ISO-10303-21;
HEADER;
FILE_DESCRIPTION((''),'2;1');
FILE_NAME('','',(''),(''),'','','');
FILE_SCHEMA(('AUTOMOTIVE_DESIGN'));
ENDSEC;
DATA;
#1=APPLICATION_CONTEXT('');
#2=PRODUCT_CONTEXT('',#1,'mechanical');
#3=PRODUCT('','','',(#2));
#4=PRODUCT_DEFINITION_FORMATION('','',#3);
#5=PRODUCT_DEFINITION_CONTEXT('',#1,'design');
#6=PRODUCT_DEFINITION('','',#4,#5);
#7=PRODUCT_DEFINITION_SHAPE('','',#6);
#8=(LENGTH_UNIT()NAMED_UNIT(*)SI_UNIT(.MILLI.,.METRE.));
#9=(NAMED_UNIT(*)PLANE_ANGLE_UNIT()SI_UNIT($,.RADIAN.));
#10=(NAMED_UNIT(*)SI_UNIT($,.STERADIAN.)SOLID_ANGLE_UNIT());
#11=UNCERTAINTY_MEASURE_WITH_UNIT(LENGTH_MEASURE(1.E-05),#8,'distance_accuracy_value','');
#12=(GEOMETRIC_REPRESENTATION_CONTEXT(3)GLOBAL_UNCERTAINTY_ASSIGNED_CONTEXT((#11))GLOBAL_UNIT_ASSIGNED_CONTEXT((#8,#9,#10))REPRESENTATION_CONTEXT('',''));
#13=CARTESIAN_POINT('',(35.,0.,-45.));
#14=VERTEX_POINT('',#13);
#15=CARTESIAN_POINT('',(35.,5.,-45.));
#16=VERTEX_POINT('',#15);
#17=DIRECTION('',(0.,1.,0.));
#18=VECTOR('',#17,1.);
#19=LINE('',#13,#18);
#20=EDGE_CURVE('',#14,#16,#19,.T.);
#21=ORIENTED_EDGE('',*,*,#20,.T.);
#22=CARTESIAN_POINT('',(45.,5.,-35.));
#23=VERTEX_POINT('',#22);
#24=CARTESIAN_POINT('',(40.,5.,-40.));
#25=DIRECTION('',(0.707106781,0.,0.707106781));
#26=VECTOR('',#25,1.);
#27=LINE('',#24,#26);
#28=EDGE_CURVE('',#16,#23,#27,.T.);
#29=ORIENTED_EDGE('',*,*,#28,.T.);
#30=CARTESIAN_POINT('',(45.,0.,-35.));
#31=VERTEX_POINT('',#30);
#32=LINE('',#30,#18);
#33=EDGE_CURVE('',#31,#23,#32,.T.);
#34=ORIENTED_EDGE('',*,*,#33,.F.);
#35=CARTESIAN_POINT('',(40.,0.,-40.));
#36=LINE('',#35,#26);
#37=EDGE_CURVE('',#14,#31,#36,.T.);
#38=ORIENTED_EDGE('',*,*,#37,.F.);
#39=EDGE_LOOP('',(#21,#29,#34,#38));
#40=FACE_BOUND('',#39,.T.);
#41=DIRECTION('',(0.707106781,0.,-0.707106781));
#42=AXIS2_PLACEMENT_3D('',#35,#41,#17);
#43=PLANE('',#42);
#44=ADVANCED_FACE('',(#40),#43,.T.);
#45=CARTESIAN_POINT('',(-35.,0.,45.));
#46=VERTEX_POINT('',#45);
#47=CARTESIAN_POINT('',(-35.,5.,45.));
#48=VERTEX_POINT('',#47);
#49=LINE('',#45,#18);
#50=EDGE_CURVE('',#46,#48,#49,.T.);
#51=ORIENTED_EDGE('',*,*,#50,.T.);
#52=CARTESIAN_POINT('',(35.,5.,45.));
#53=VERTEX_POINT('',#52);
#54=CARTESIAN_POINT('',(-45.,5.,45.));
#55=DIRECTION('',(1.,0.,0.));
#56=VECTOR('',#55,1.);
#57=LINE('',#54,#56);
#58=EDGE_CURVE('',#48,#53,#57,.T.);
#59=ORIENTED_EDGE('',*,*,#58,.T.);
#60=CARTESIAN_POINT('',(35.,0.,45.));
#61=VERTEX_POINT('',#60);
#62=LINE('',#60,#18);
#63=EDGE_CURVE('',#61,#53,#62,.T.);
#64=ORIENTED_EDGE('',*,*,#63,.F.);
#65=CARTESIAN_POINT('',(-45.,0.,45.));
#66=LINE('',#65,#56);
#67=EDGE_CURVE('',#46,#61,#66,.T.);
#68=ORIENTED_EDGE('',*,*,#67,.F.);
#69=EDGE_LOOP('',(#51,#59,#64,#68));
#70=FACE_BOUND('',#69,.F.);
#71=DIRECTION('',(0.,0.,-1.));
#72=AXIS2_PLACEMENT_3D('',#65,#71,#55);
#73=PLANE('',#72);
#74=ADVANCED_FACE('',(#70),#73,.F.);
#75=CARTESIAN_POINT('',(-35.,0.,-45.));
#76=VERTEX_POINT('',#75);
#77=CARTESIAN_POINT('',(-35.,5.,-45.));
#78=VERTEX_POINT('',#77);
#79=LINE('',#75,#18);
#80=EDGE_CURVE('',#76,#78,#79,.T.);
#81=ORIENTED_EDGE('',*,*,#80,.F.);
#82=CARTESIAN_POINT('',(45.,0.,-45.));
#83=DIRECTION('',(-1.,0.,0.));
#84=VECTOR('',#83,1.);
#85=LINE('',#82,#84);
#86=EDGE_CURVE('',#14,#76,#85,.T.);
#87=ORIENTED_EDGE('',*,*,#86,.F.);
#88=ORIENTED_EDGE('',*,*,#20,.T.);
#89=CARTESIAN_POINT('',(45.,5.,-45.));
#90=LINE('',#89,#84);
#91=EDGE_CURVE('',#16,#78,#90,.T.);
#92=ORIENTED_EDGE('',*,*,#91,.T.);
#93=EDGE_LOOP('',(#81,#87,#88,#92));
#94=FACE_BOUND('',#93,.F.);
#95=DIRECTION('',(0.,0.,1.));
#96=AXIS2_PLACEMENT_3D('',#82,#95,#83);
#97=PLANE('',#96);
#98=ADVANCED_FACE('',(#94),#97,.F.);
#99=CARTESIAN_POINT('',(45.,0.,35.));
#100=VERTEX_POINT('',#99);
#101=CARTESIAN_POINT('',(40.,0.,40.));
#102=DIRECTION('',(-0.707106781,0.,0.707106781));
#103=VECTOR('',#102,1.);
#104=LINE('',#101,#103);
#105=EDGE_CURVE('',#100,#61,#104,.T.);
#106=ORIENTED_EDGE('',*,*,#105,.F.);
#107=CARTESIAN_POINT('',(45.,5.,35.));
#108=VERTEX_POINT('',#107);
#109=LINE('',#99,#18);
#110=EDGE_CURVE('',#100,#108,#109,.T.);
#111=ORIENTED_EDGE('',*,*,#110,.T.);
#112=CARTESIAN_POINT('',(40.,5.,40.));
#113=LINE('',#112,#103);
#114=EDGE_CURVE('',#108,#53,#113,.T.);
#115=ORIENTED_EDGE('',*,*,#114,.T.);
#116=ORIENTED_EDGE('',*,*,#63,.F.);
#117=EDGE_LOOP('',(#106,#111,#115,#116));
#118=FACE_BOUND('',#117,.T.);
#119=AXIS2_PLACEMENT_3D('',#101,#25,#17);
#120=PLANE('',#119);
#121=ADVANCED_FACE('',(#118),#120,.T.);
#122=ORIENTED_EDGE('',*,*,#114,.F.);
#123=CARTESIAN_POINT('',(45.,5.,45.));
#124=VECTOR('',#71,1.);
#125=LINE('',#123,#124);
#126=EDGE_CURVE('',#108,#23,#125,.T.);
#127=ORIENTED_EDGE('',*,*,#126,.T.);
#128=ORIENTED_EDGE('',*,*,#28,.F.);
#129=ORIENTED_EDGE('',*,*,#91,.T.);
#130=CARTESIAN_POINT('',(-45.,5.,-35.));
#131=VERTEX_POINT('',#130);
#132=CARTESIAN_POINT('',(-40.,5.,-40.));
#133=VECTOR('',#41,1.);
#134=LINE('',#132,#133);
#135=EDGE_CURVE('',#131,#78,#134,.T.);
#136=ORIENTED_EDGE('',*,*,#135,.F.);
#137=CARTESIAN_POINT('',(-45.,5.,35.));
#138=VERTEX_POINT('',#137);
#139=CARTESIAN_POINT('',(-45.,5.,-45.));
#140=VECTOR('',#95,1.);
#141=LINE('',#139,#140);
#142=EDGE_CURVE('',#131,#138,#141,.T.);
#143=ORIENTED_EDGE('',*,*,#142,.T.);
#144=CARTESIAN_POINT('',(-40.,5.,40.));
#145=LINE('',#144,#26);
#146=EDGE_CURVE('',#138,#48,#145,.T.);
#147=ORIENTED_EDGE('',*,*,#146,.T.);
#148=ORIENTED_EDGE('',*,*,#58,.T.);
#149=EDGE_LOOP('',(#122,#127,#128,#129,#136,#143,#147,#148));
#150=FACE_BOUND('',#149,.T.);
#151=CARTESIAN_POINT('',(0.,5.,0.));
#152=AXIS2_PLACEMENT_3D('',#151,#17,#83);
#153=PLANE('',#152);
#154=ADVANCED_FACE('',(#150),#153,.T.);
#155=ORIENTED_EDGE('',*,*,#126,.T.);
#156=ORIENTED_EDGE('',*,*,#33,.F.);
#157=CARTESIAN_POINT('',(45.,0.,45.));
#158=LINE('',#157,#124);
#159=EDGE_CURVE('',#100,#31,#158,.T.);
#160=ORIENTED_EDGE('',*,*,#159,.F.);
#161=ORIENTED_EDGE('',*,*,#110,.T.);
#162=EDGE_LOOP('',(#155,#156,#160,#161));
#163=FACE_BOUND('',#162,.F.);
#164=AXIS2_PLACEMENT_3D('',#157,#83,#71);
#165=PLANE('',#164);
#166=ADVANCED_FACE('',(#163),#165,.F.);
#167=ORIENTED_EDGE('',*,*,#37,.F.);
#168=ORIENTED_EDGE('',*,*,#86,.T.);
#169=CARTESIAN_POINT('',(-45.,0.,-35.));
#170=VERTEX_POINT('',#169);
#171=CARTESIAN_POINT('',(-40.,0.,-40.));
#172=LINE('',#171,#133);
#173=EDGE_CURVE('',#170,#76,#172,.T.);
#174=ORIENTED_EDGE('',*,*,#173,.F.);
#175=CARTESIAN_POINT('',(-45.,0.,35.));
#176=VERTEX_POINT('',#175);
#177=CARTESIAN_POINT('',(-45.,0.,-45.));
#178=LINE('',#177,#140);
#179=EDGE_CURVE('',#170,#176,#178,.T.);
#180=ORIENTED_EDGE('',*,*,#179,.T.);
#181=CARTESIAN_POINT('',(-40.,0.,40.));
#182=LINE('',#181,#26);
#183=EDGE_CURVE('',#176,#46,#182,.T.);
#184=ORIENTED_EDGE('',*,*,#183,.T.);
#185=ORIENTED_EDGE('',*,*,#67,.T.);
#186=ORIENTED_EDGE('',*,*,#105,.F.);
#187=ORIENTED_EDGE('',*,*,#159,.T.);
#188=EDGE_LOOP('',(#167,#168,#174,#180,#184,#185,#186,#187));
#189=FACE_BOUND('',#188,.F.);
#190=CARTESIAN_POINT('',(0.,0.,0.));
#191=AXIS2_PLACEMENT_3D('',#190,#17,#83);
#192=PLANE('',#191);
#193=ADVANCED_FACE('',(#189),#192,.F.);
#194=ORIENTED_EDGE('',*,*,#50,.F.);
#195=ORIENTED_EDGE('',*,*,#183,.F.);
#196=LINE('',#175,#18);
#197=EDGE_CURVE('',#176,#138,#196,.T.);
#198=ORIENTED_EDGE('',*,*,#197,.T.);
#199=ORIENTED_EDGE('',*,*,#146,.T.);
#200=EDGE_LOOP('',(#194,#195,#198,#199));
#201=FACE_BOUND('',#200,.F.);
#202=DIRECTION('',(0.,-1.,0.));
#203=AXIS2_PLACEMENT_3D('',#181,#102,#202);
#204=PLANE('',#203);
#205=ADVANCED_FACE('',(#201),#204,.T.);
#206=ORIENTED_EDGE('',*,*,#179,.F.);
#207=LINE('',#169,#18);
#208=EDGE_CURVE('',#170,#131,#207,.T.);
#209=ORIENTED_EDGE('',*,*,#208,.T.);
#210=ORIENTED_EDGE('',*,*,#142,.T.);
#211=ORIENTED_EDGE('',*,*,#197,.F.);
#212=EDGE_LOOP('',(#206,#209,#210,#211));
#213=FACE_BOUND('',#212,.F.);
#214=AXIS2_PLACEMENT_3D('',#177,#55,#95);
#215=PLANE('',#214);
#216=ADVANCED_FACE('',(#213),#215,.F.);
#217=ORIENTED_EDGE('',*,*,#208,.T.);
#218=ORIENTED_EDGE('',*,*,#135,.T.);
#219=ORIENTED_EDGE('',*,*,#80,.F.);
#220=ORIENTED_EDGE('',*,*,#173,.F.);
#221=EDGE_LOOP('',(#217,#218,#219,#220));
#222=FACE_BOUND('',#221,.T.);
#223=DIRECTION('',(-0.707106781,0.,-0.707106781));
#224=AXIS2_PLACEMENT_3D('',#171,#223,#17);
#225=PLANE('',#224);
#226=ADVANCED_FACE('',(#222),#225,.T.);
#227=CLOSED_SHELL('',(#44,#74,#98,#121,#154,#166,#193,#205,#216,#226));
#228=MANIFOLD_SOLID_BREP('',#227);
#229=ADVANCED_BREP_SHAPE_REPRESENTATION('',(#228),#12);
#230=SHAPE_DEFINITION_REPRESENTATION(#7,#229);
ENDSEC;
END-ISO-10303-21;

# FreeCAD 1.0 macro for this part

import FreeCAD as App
import Part
import Sketcher
from FreeCAD import Vector
Q = App.Units.Quantity


def edges_at(feature, points):
    """Names of the edges that pass closest to the given points."""
    edges = feature.Shape.Edges
    near = lambda p: min(range(len(edges)), key=lambda i: edges[i].distToShape(Part.Vertex(*p))[0])
    return sorted({f"Edge{near(p) + 1}" for p in points})


def add_polygon(sketch, points):
    """Adds a closed chain of lines whose ends are joined by coincident constraints."""
    first, n = sketch.GeometryCount, len(points)
    for a, b in zip(points, points[1:] + points[:1]):
        sketch.addGeometry(Part.LineSegment(App.Vector(*a, 0), App.Vector(*b, 0)), False)
    for i in range(n):
        sketch.addConstraint(Sketcher.Constraint("Coincident", first + i, 2, first + (i + 1) % n, 1))

doc = App.newDocument("Part")
params = doc.addObject("Spreadsheet::Sheet", "Params")
for row, (alias, value) in enumerate([
    ("sketch1_width", "90 mm"),
    ("pad1_length", "5 mm"),
    ("chamfer_size", "10 mm"),
], start=1):
    params.set(f"A{row}", alias)
    params.set(f"B{row}", "=" + value)
    params.setAlias(f"B{row}", alias)

body = doc.addObject("PartDesign::Body", "Body")

# Sketch on XZ plane
sketch1 = body.newObject("Sketcher::SketchObject", "Sketch")
sketch1.AttachmentSupport = (doc.getObject("XZ_Plane"), [""])
sketch1.MapMode = "FlatFace"
add_polygon(sketch1, [(-45, -45), (-45, 45), (45, 45), (45, -45)])  # lines 0-3
sketch1.addConstraint(Sketcher.Constraint("Vertical", 0))
sketch1.addConstraint(Sketcher.Constraint("Horizontal", 1))
sketch1.addConstraint(Sketcher.Constraint("Vertical", 2))
sketch1.addConstraint(Sketcher.Constraint("Horizontal", 3))
sketch1.addConstraint(Sketcher.Constraint("Symmetric", 0, 2, 2, 2, -1, 1))
sketch1.addConstraint(Sketcher.Constraint("Equal", 3, 0))
sketch1.addConstraint(Sketcher.Constraint("DistanceX", 1, 1, 1, 2, Q("90 mm")))
sketch1.setExpression("Constraints[10]", "Params.sketch1_width")
pad1 = body.newObject("PartDesign::Pad", "Pad")
pad1.Profile = sketch1
pad1.setExpression("Length", "Params.pad1_length")
pad1.Reversed = True
doc.recompute()

chamfer = body.newObject("PartDesign::Chamfer", "Chamfer")
chamfer.Base = (pad1, edges_at(pad1, [
    (-45, 2.5, 45),
    (-45, 2.5, -45),
    (45, 2.5, -45),
    (45, 2.5, 45),
]))
chamfer.setExpression("Size", "Params.chamfer_size")

doc.recompute()
